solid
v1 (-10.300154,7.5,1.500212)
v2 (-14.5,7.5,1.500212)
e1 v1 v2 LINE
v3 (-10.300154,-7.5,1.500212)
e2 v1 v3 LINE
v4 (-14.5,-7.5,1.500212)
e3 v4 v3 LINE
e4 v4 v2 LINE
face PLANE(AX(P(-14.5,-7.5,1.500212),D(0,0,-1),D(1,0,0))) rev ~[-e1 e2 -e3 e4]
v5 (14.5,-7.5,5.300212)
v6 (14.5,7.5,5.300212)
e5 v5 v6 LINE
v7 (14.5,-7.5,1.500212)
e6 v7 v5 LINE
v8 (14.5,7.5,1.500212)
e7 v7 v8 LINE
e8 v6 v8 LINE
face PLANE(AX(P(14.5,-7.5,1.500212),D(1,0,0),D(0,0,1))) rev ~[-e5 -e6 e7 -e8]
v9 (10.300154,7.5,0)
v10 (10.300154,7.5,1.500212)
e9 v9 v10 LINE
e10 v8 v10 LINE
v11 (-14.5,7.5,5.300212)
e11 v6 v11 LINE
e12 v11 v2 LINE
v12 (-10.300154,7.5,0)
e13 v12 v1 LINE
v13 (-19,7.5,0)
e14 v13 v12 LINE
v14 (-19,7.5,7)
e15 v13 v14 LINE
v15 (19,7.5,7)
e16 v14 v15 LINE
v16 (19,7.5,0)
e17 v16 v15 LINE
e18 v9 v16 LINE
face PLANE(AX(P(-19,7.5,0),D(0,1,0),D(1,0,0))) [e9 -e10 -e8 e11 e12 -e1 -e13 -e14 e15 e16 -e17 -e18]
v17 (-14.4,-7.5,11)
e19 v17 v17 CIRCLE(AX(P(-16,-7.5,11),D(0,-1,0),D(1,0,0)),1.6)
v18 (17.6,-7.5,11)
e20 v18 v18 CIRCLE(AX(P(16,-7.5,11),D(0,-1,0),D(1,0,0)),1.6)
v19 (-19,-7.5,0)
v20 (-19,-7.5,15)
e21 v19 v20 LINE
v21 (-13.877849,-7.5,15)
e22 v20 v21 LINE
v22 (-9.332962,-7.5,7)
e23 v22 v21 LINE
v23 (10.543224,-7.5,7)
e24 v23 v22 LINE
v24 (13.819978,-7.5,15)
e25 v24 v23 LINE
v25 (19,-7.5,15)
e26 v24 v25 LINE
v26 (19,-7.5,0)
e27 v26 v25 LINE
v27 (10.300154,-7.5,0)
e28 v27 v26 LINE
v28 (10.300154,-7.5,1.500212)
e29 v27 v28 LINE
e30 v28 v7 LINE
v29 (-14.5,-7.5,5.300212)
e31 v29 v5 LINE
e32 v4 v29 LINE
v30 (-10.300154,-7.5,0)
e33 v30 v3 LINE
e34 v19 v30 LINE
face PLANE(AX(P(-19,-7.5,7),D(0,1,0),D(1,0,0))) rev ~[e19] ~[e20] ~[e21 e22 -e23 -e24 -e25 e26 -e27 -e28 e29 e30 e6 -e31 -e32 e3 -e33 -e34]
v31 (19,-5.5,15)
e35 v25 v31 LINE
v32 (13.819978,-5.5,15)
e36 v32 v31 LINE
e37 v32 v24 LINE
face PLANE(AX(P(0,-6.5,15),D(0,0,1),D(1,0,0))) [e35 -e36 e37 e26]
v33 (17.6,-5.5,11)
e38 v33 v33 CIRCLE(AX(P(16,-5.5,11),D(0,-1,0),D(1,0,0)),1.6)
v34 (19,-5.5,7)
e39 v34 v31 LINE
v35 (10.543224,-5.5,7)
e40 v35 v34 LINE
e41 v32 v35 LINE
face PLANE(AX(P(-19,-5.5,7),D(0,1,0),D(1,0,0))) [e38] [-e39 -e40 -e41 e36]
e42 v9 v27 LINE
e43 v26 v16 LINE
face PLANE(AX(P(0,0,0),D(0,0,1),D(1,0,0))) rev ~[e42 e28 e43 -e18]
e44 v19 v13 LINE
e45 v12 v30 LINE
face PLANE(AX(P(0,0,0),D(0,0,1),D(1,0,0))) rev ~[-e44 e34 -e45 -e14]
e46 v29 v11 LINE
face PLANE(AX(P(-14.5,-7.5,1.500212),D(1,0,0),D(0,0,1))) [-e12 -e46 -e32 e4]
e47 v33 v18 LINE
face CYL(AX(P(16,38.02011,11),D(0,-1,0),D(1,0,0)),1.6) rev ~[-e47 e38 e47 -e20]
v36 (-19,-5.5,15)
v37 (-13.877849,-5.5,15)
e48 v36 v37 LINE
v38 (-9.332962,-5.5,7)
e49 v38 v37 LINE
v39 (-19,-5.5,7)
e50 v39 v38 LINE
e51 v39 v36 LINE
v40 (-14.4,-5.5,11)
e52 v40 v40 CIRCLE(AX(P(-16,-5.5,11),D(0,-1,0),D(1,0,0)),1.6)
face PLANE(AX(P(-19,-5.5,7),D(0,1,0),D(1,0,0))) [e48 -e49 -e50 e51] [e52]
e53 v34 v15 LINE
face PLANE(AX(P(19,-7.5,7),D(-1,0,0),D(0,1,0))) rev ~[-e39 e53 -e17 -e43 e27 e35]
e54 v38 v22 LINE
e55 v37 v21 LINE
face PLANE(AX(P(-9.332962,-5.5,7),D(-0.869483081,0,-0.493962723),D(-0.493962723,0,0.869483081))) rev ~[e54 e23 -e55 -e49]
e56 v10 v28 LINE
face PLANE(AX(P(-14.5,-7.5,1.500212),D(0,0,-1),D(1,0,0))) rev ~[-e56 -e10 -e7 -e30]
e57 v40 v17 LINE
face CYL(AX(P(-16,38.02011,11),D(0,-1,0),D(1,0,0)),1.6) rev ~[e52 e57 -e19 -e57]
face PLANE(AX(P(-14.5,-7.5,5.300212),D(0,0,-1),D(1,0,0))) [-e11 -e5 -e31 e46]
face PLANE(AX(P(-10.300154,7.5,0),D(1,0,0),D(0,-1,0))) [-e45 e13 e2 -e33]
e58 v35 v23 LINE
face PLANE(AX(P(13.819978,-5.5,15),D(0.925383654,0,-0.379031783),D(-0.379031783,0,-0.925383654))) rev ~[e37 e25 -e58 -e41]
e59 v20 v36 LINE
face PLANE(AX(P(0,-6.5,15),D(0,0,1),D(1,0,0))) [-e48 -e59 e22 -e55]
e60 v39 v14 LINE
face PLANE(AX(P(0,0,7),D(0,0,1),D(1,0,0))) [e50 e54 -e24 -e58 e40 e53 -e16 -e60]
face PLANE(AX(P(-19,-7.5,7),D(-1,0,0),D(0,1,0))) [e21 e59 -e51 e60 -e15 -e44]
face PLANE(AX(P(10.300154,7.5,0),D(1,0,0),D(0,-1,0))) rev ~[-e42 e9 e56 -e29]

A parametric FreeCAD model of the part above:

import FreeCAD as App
import Part
import Sketcher


def add_polygon(sketch, points):
    """Adds a closed chain of lines whose ends are joined by coincident constraints."""
    first, n = sketch.GeometryCount, len(points)
    for a, b in zip(points, points[1:] + points[:1]):
        sketch.addGeometry(Part.LineSegment(App.Vector(*a, 0), App.Vector(*b, 0)), False)
    for i in range(n):
        sketch.addConstraint(Sketcher.Constraint("Coincident", first + i, 2, first + (i + 1) % n, 1))

doc = App.newDocument("Part")
body = doc.addObject("PartDesign::Body", "Body")

# Sketch on XY plane
sketch1 = doc.addObject("Sketcher::SketchObject", "Sketch")
body.addObject(sketch1)
sketch1.AttachmentSupport = (doc.XY_Plane, [""])
sketch1.MapMode = "FlatFace"
add_polygon(sketch1, [(-19, 8), (-19, -8), (19, -8), (19, 8)])  # lines 0-3
sketch1.addConstraint(Sketcher.Constraint("Vertical", 0))
sketch1.addConstraint(Sketcher.Constraint("Horizontal", 1))
sketch1.addConstraint(Sketcher.Constraint("Vertical", 2))
sketch1.addConstraint(Sketcher.Constraint("Horizontal", 3))
sketch1.addConstraint(Sketcher.Constraint("Symmetric", 0, 2, 2, 2, -1, 1))
sketch1.addConstraint(Sketcher.Constraint("DistanceX", 1, 1, 1, 2, 38.0))
sketch1.addConstraint(Sketcher.Constraint("DistanceY", 0, 2, 0, 1, 15.0))
pad1 = doc.addObject("PartDesign::Pad", "Pad")
body.addObject(pad1)
pad1.Profile = sketch1
pad1.Length = 7

# Sketch on XZ plane
sketch2 = doc.addObject("Sketcher::SketchObject", "Sketch001")
body.addObject(sketch2)
sketch2.AttachmentSupport = (doc.XZ_Plane, [""])
sketch2.MapMode = "FlatFace"
sketch2.AttachmentOffset = App.Placement(App.Vector(0, 0, 7.5), App.Rotation())
add_polygon(sketch2, [(-14.5, 5.3), (-14.5, 1.5), (14.5, 1.5), (14.5, 5.3)])  # lines 0-3
sketch2.addConstraint(Sketcher.Constraint("Vertical", 0))
sketch2.addConstraint(Sketcher.Constraint("Horizontal", 1))
sketch2.addConstraint(Sketcher.Constraint("Vertical", 2))
sketch2.addConstraint(Sketcher.Constraint("Horizontal", 3))
sketch2.addConstraint(Sketcher.Constraint("DistanceX", 1, 1, 1, 2, 29.0))
sketch2.addConstraint(Sketcher.Constraint("DistanceY", 0, 2, 0, 1, 3.8))
sketch2.addConstraint(Sketcher.Constraint("DistanceX", 0, 2, -1, 1, 14.5))
sketch2.addConstraint(Sketcher.Constraint("DistanceY", -1, 1, 0, 2, 1.500212))
pocket1 = doc.addObject("PartDesign::Pocket", "Pocket")
body.addObject(pocket1)
pocket1.Profile = sketch2
pocket1.Length = 30

# Sketch on XY plane
sketch3 = doc.addObject("Sketcher::SketchObject", "Sketch002")
body.addObject(sketch3)
sketch3.AttachmentSupport = (doc.XY_Plane, [""])
sketch3.MapMode = "FlatFace"
add_polygon(sketch3, [(-10, -8), (-10, 8), (10, 8), (10, -8)])  # lines 0-3
sketch3.addConstraint(Sketcher.Constraint("Vertical", 0))
sketch3.addConstraint(Sketcher.Constraint("Horizontal", 1))
sketch3.addConstraint(Sketcher.Constraint("Vertical", 2))
sketch3.addConstraint(Sketcher.Constraint("Horizontal", 3))
sketch3.addConstraint(Sketcher.Constraint("Symmetric", 0, 2, 2, 2, -1, 1))
sketch3.addConstraint(Sketcher.Constraint("DistanceY", 0, 1, 0, 2, 15.0))
sketch3.addConstraint(Sketcher.Constraint("DistanceX", 1, 1, 1, 2, 20.600308))
pocket2 = doc.addObject("PartDesign::Pocket", "Pocket001")
body.addObject(pocket2)
pocket2.Profile = sketch3
pocket2.Length = 5
pocket2.Reversed = True

# Sketch on XY plane
sketch4 = doc.addObject("Sketcher::SketchObject", "Sketch003")
body.addObject(sketch4)
sketch4.AttachmentSupport = (doc.XY_Plane, [""])
sketch4.MapMode = "FlatFace"
sketch4.AttachmentOffset = App.Placement(App.Vector(0, 0, 7), App.Rotation())
add_polygon(sketch4, [(-19, -5.5), (-19, -7.5), (19, -7.5), (19, -5.5)])  # lines 0-3
sketch4.addConstraint(Sketcher.Constraint("Vertical", 0))
sketch4.addConstraint(Sketcher.Constraint("Horizontal", 1))
sketch4.addConstraint(Sketcher.Constraint("Vertical", 2))
sketch4.addConstraint(Sketcher.Constraint("Horizontal", 3))
sketch4.addConstraint(Sketcher.Constraint("DistanceX", 1, 1, 1, 2, 38.0))
sketch4.addConstraint(Sketcher.Constraint("DistanceY", 0, 2, 0, 1, 2.0))
sketch4.addConstraint(Sketcher.Constraint("DistanceX", 0, 2, -1, 1, 19.0))
sketch4.addConstraint(Sketcher.Constraint("DistanceY", 0, 2, -1, 1, 7.5))
pad2 = doc.addObject("PartDesign::Pad", "Pad001")
body.addObject(pad2)
pad2.Profile = sketch4
pad2.Length = 8

# Sketch on XZ plane
sketch5 = doc.addObject("Sketcher::SketchObject", "Sketch004")
body.addObject(sketch5)
sketch5.AttachmentSupport = (doc.XZ_Plane, [""])
sketch5.MapMode = "FlatFace"
sketch5.AttachmentOffset = App.Placement(App.Vector(0, 0, 5.5), App.Rotation())
sketch5.addGeometry(Part.Circle(App.Vector(-16, 11, 0), App.Vector(0, 0, 1), 1.6), False)
sketch5.addGeometry(Part.Circle(App.Vector(16, 11, 0), App.Vector(0, 0, 1), 1.6), False)
sketch5.addConstraint(Sketcher.Constraint("Equal", 0, 1))
sketch5.addConstraint(Sketcher.Constraint("Symmetric", 0, 3, 1, 3, -2))
sketch5.addConstraint(Sketcher.Constraint("Diameter", 0, 3.2))
sketch5.addConstraint(Sketcher.Constraint("DistanceX", 0, 3, -1, 1, 16.0))
sketch5.addConstraint(Sketcher.Constraint("DistanceY", -1, 1, 0, 3, 11.0))
doc.recompute()
hole = doc.addObject("PartDesign::Hole", "Hole")
body.addObject(hole)
hole.Profile = sketch5
hole.ThreadType = "None"
hole.Diameter = 3.2
hole.DepthType = "ThroughAll"
hole.Reversed = True

# Sketch on XZ plane
sketch6 = doc.addObject("Sketcher::SketchObject", "Sketch005")
body.addObject(sketch6)
sketch6.AttachmentSupport = (doc.XZ_Plane, [""])
sketch6.MapMode = "FlatFace"
sketch6.AttachmentOffset = App.Placement(App.Vector(0, 0, 5.5), App.Rotation())
add_polygon(sketch6, [(-9, 7), (-14, 15), (14, 15), (11, 7)])  # lines 0-3
sketch6.addConstraint(Sketcher.Constraint("Horizontal", 1))
sketch6.addConstraint(Sketcher.Constraint("Horizontal", 3))
sketch6.addConstraint(Sketcher.Constraint("DistanceY", -1, 1, 0, 2, 15.0))
sketch6.addConstraint(Sketcher.Constraint("DistanceY", -1, 1, 2, 2, 7.0))
sketch6.addConstraint(Sketcher.Constraint("Distance", 0, 9.200869))
sketch6.addConstraint(Sketcher.Constraint("DistanceX", 1, 1, 1, 2, 27.697827))
sketch6.addConstraint(Sketcher.Constraint("DistanceX", 3, 2, 3, 1, 19.876187))
sketch6.addConstraint(Sketcher.Constraint("DistanceX", 0, 2, -1, 1, 13.877849))
pocket3 = doc.addObject("PartDesign::Pocket", "Pocket002")
body.addObject(pocket3)
pocket3.Profile = sketch6
pocket3.Length = 25
pocket3.Reversed = True

doc.recompute()
